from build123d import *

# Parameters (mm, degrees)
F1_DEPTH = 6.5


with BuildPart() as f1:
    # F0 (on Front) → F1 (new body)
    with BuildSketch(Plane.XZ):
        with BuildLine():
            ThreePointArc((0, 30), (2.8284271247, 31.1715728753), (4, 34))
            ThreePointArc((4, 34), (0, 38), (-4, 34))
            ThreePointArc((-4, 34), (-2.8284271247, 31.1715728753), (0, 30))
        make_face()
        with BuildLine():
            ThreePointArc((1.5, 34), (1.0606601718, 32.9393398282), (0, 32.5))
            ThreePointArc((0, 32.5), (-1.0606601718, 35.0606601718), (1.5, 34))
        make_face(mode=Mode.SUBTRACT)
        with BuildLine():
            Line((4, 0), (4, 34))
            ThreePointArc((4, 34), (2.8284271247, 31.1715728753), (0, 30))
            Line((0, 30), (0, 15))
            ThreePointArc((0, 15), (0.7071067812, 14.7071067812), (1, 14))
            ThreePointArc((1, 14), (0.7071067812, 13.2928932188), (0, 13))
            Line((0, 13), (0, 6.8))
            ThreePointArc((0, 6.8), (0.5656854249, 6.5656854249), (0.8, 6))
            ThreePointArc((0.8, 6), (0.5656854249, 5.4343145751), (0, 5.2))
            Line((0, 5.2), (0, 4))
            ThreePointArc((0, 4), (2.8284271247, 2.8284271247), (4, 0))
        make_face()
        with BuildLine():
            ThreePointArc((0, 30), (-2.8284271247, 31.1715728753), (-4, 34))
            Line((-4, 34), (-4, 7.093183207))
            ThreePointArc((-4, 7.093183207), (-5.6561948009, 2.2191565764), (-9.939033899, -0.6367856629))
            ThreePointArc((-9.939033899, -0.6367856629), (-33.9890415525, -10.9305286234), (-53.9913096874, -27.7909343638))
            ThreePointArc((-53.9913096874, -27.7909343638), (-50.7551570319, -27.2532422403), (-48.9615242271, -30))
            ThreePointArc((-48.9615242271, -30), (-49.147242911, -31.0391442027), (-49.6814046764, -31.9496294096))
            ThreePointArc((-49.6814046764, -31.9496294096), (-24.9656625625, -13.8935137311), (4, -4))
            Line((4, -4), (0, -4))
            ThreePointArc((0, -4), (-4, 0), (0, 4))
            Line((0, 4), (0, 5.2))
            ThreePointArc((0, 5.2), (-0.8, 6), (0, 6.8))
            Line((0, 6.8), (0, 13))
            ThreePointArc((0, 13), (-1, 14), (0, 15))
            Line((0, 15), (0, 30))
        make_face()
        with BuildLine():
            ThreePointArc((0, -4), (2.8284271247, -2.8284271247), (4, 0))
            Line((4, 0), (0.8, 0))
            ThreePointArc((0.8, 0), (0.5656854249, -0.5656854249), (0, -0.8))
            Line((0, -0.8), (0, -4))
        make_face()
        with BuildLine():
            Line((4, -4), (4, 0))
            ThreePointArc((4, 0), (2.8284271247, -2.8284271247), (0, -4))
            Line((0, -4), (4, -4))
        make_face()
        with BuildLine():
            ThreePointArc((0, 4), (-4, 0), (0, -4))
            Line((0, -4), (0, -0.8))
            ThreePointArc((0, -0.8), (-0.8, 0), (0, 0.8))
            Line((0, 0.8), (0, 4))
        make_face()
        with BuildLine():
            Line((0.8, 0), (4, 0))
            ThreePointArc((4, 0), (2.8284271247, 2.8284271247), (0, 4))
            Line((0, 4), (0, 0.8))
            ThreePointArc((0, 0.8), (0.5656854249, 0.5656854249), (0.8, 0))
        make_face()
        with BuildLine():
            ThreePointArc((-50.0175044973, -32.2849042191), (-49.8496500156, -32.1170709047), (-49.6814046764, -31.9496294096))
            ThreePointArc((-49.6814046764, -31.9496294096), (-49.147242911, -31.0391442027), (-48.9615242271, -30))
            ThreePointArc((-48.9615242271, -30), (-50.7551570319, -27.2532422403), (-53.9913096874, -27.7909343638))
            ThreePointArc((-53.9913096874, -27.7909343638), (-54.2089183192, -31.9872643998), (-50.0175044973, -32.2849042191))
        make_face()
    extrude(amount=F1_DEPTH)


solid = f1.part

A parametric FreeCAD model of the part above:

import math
import FreeCAD as App
import Part
import Sketcher
from FreeCAD import Vector
Q = App.Units.Quantity

doc = App.newDocument("Part")
body = doc.addObject("PartDesign::Body", "Body")

sketch1 = body.newObject("Sketcher::SketchObject", "Sketch")
sketch1.AttachmentSupport = (doc.getObject("XZ_Plane"), [""])
sketch1.MapMode = "FlatFace"
sketch1.addGeometry(Part.LineSegment(Vector(4, -4, 0), Vector(4, 34, 0)), False)
sketch1.addGeometry(Part.ArcOfCircle(Part.Circle(Vector(0, 34, 0), Vector(0, 0, 1), 4), math.radians(0), math.radians(180)), False)
sketch1.addGeometry(Part.LineSegment(Vector(-4, 34, 0), Vector(-4, 7.093183, 0)), False)
sketch1.addGeometry(Part.ArcOfCircle(Part.Circle(Vector(-12, 7.093183, 0), Vector(0, 0, 1), 8), math.radians(-75.071067), math.radians(0)), False)
sketch1.addGeometry(Part.ArcOfCircle(Part.Circle(Vector(12.563607, -86.453063, 0), Vector(0, 0, 1), 88.717542), math.radians(104.69323), math.radians(138.606745)), False)
sketch1.addGeometry(Part.ArcOfCircle(Part.Circle(Vector(-51.961524, -30, 0), Vector(0, 0, 1), 3), math.radians(132.578146), math.radians(310.391474)), False)
sketch1.addGeometry(Part.ArcOfCircle(Part.Circle(Vector(22.049539, -104.193182, 0), Vector(0, 0, 1), 101.805988), math.radians(134.796004), math.radians(135.063182)), False)
sketch1.addGeometry(Part.ArcOfCircle(Part.Circle(Vector(22.049547, -104.193191, 0), Vector(0, 0, 1), 101.806), math.radians(100.212156), math.radians(134.796004)), False)
sketch1.addGeometry(Part.ArcOfCircle(Part.Circle(Vector(0, 6, 0), Vector(0, 0, 1), 0.8), math.radians(0), math.radians(90)), False)
sketch1.addGeometry(Part.ArcOfCircle(Part.Circle(Vector(0, 6, 0), Vector(0, 0, 1), 0.8), math.radians(-90), math.radians(0)), False)
sketch1.addGeometry(Part.ArcOfCircle(Part.Circle(Vector(0, 6, 0), Vector(0, 0, 1), 0.8), math.radians(90), math.radians(270)), False)
sketch1.addGeometry(Part.ArcOfCircle(Part.Circle(Vector(0, 14, 0), Vector(0, 0, 1), 1), math.radians(0), math.radians(90)), False)
sketch1.addGeometry(Part.ArcOfCircle(Part.Circle(Vector(0, 14, 0), Vector(0, 0, 1), 1), math.radians(-90), math.radians(0)), False)
sketch1.addGeometry(Part.ArcOfCircle(Part.Circle(Vector(0, 14, 0), Vector(0, 0, 1), 1), math.radians(90), math.radians(270)), False)
sketch1.addGeometry(Part.ArcOfCircle(Part.Circle(Vector(0, 0, 0), Vector(0, 0, 1), 0.8), math.radians(90), math.radians(270)), False)
sketch1.addGeometry(Part.ArcOfCircle(Part.Circle(Vector(0, 0, 0), Vector(0, 0, 1), 0.8), math.radians(0), math.radians(90)), False)
sketch1.addGeometry(Part.ArcOfCircle(Part.Circle(Vector(0, 0, 0), Vector(0, 0, 1), 0.8), math.radians(-90), math.radians(0)), False)
sketch1.addGeometry(Part.ArcOfCircle(Part.Circle(Vector(0, 34, 0), Vector(0, 0, 1), 1.5), math.radians(0), math.radians(270)), False)
sketch1.addGeometry(Part.ArcOfCircle(Part.Circle(Vector(0, 34, 0), Vector(0, 0, 1), 1.5), math.radians(-90), math.radians(0)), False)
sketch1.addConstraint(Sketcher.Constraint("Coincident", 0, 2, 1, 1))
sketch1.addConstraint(Sketcher.Constraint("Coincident", 1, 2, 2, 1))
sketch1.addConstraint(Sketcher.Constraint("Coincident", 2, 2, 3, 2))
sketch1.addConstraint(Sketcher.Constraint("Coincident", 3, 1, 4, 1))
sketch1.addConstraint(Sketcher.Constraint("Coincident", 4, 2, 5, 1))
sketch1.addConstraint(Sketcher.Constraint("Coincident", 5, 2, 6, 2))
sketch1.addConstraint(Sketcher.Constraint("Coincident", 6, 1, 7, 2))
sketch1.addConstraint(Sketcher.Constraint("Coincident", 7, 1, 0, 1))
sketch1.addConstraint(Sketcher.Constraint("Coincident", 8, 1, 9, 2))
sketch1.addConstraint(Sketcher.Constraint("Coincident", 9, 1, 10, 2))
sketch1.addConstraint(Sketcher.Constraint("Coincident", 10, 1, 8, 2))
sketch1.addConstraint(Sketcher.Constraint("Coincident", 11, 1, 12, 2))
sketch1.addConstraint(Sketcher.Constraint("Coincident", 12, 1, 13, 2))
sketch1.addConstraint(Sketcher.Constraint("Coincident", 13, 1, 11, 2))
sketch1.addConstraint(Sketcher.Constraint("Coincident", 14, 1, 15, 2))
sketch1.addConstraint(Sketcher.Constraint("Coincident", 15, 1, 16, 2))
sketch1.addConstraint(Sketcher.Constraint("Coincident", 16, 1, 14, 2))
sketch1.addConstraint(Sketcher.Constraint("Coincident", 17, 1, 18, 2))
sketch1.addConstraint(Sketcher.Constraint("Coincident", 18, 1, 17, 2))
sketch1.addConstraint(Sketcher.Constraint("Vertical", 0))
sketch1.addConstraint(Sketcher.Constraint("Vertical", 2))
sketch1.addConstraint(Sketcher.Constraint("Coincident", 14, 3, -1, 1))
sketch1.addConstraint(Sketcher.Constraint("Coincident", 15, 3, -1, 1))
sketch1.addConstraint(Sketcher.Constraint("Coincident", 9, 3, 8, 3))
sketch1.addConstraint(Sketcher.Constraint("Coincident", 12, 3, 11, 3))
sketch1.addConstraint(Sketcher.Constraint("Coincident", 17, 3, 1, 3))
sketch1.addConstraint(Sketcher.Constraint("PointOnObject", 1, 3, -2))
sketch1.addConstraint(Sketcher.Constraint("PointOnObject", 8, 3, -2))
sketch1.addConstraint(Sketcher.Constraint("PointOnObject", 10, 3, -2))
sketch1.addConstraint(Sketcher.Constraint("PointOnObject", 11, 3, -2))
sketch1.addConstraint(Sketcher.Constraint("PointOnObject", 13, 3, -2))
sketch1.addConstraint(Sketcher.Constraint("PointOnObject", 18, 3, -2))
sketch1.addConstraint(Sketcher.Constraint("PointOnObject", 9, 1, -2))
sketch1.addConstraint(Sketcher.Constraint("PointOnObject", 10, 1, -2))
sketch1.addConstraint(Sketcher.Constraint("PointOnObject", 12, 1, -2))
sketch1.addConstraint(Sketcher.Constraint("PointOnObject", 13, 1, -2))
sketch1.addConstraint(Sketcher.Constraint("PointOnObject", 14, 1, -2))
sketch1.addConstraint(Sketcher.Constraint("PointOnObject", 15, 1, -1))
sketch1.addConstraint(Sketcher.Constraint("PointOnObject", 16, 1, -2))
sketch1.addConstraint(Sketcher.Constraint("PointOnObject", 18, 1, -2))
sketch1.addConstraint(Sketcher.Constraint("Radius", 1, Q("4 mm")))
sketch1.addConstraint(Sketcher.Constraint("Radius", 3, Q("8 mm")))
sketch1.addConstraint(Sketcher.Constraint("Radius", 5, Q("3 mm")))
sketch1.addConstraint(Sketcher.Constraint("Radius", 11, Q("1 mm")))
sketch1.addConstraint(Sketcher.Constraint("Radius", 8, Q("0.8 mm")))
sketch1.addConstraint(Sketcher.Constraint("Radius", 14, Q("0.8 mm")))
sketch1.addConstraint(Sketcher.Constraint("Radius", 16, Q("0.8 mm")))
sketch1.addConstraint(Sketcher.Constraint("Radius", 17, Q("1.5 mm")))
sketch1.addConstraint(Sketcher.Constraint("DistanceY", 0, 1, 0, 2, Q("38 mm")))
sketch1.addConstraint(Sketcher.Constraint("DistanceY", -1, 1, 1, 3, Q("34 mm")))
sketch1.addConstraint(Sketcher.Constraint("DistanceY", 5, 3, -1, 1, Q("30 mm")))
sketch1.addConstraint(Sketcher.Constraint("DistanceY", -1, 1, 8, 3, Q("6 mm")))
sketch1.addConstraint(Sketcher.Constraint("DistanceY", -1, 1, 11, 3, Q("14 mm")))
sketch1.addConstraint(Sketcher.Constraint("DistanceY", -1, 1, 0, 2, Q("34 mm")))
sketch1.addConstraint(Sketcher.Constraint("DistanceY", -1, 1, 1, 2, Q("34 mm")))
sketch1.addConstraint(Sketcher.Constraint("DistanceY", -1, 1, 8, 1, Q("6 mm")))
sketch1.addConstraint(Sketcher.Constraint("DistanceY", -1, 1, 11, 1, Q("14 mm")))
sketch1.addConstraint(Sketcher.Constraint("DistanceY", -1, 1, 17, 1, Q("34 mm")))
sketch1.addConstraint(Sketcher.Constraint("Radius", 7, Q("101.806 mm")))
sketch1.addConstraint(Sketcher.Constraint("Radius", 4, Q("88.717542 mm")))
sketch1.addConstraint(Sketcher.Constraint("Radius", 6, Q("101.805988 mm")))
sketch1.addConstraint(Sketcher.Constraint("DistanceX", 5, 2, 6, 1, Q("0.3361 mm")))
sketch1.addConstraint(Sketcher.Constraint("DistanceY", 2, 2, 2, 1, Q("26.906817 mm")))
sketch1.addConstraint(Sketcher.Constraint("DistanceX", -1, 1, 6, 3, Q("22.049539 mm")))
sketch1.addConstraint(Sketcher.Constraint("DistanceY", 6, 3, -1, 1, Q("104.193182 mm")))
sketch1.addConstraint(Sketcher.Constraint("DistanceX", 4, 2, -1, 1, Q("53.99131 mm")))
sketch1.addConstraint(Sketcher.Constraint("DistanceY", 6, 1, -1, 1, Q("31.949629 mm")))
sketch1.addConstraint(Sketcher.Constraint("DistanceX", 5, 3, 4, 3, Q("64.525132 mm")))
sketch1.addConstraint(Sketcher.Constraint("DistanceY", 3, 1, 3, 3, Q("7.729969 mm")))
pad1 = body.newObject("PartDesign::Pad", "Pad")
pad1.Profile = sketch1
pad1.Length = 6.5

doc.recompute()
